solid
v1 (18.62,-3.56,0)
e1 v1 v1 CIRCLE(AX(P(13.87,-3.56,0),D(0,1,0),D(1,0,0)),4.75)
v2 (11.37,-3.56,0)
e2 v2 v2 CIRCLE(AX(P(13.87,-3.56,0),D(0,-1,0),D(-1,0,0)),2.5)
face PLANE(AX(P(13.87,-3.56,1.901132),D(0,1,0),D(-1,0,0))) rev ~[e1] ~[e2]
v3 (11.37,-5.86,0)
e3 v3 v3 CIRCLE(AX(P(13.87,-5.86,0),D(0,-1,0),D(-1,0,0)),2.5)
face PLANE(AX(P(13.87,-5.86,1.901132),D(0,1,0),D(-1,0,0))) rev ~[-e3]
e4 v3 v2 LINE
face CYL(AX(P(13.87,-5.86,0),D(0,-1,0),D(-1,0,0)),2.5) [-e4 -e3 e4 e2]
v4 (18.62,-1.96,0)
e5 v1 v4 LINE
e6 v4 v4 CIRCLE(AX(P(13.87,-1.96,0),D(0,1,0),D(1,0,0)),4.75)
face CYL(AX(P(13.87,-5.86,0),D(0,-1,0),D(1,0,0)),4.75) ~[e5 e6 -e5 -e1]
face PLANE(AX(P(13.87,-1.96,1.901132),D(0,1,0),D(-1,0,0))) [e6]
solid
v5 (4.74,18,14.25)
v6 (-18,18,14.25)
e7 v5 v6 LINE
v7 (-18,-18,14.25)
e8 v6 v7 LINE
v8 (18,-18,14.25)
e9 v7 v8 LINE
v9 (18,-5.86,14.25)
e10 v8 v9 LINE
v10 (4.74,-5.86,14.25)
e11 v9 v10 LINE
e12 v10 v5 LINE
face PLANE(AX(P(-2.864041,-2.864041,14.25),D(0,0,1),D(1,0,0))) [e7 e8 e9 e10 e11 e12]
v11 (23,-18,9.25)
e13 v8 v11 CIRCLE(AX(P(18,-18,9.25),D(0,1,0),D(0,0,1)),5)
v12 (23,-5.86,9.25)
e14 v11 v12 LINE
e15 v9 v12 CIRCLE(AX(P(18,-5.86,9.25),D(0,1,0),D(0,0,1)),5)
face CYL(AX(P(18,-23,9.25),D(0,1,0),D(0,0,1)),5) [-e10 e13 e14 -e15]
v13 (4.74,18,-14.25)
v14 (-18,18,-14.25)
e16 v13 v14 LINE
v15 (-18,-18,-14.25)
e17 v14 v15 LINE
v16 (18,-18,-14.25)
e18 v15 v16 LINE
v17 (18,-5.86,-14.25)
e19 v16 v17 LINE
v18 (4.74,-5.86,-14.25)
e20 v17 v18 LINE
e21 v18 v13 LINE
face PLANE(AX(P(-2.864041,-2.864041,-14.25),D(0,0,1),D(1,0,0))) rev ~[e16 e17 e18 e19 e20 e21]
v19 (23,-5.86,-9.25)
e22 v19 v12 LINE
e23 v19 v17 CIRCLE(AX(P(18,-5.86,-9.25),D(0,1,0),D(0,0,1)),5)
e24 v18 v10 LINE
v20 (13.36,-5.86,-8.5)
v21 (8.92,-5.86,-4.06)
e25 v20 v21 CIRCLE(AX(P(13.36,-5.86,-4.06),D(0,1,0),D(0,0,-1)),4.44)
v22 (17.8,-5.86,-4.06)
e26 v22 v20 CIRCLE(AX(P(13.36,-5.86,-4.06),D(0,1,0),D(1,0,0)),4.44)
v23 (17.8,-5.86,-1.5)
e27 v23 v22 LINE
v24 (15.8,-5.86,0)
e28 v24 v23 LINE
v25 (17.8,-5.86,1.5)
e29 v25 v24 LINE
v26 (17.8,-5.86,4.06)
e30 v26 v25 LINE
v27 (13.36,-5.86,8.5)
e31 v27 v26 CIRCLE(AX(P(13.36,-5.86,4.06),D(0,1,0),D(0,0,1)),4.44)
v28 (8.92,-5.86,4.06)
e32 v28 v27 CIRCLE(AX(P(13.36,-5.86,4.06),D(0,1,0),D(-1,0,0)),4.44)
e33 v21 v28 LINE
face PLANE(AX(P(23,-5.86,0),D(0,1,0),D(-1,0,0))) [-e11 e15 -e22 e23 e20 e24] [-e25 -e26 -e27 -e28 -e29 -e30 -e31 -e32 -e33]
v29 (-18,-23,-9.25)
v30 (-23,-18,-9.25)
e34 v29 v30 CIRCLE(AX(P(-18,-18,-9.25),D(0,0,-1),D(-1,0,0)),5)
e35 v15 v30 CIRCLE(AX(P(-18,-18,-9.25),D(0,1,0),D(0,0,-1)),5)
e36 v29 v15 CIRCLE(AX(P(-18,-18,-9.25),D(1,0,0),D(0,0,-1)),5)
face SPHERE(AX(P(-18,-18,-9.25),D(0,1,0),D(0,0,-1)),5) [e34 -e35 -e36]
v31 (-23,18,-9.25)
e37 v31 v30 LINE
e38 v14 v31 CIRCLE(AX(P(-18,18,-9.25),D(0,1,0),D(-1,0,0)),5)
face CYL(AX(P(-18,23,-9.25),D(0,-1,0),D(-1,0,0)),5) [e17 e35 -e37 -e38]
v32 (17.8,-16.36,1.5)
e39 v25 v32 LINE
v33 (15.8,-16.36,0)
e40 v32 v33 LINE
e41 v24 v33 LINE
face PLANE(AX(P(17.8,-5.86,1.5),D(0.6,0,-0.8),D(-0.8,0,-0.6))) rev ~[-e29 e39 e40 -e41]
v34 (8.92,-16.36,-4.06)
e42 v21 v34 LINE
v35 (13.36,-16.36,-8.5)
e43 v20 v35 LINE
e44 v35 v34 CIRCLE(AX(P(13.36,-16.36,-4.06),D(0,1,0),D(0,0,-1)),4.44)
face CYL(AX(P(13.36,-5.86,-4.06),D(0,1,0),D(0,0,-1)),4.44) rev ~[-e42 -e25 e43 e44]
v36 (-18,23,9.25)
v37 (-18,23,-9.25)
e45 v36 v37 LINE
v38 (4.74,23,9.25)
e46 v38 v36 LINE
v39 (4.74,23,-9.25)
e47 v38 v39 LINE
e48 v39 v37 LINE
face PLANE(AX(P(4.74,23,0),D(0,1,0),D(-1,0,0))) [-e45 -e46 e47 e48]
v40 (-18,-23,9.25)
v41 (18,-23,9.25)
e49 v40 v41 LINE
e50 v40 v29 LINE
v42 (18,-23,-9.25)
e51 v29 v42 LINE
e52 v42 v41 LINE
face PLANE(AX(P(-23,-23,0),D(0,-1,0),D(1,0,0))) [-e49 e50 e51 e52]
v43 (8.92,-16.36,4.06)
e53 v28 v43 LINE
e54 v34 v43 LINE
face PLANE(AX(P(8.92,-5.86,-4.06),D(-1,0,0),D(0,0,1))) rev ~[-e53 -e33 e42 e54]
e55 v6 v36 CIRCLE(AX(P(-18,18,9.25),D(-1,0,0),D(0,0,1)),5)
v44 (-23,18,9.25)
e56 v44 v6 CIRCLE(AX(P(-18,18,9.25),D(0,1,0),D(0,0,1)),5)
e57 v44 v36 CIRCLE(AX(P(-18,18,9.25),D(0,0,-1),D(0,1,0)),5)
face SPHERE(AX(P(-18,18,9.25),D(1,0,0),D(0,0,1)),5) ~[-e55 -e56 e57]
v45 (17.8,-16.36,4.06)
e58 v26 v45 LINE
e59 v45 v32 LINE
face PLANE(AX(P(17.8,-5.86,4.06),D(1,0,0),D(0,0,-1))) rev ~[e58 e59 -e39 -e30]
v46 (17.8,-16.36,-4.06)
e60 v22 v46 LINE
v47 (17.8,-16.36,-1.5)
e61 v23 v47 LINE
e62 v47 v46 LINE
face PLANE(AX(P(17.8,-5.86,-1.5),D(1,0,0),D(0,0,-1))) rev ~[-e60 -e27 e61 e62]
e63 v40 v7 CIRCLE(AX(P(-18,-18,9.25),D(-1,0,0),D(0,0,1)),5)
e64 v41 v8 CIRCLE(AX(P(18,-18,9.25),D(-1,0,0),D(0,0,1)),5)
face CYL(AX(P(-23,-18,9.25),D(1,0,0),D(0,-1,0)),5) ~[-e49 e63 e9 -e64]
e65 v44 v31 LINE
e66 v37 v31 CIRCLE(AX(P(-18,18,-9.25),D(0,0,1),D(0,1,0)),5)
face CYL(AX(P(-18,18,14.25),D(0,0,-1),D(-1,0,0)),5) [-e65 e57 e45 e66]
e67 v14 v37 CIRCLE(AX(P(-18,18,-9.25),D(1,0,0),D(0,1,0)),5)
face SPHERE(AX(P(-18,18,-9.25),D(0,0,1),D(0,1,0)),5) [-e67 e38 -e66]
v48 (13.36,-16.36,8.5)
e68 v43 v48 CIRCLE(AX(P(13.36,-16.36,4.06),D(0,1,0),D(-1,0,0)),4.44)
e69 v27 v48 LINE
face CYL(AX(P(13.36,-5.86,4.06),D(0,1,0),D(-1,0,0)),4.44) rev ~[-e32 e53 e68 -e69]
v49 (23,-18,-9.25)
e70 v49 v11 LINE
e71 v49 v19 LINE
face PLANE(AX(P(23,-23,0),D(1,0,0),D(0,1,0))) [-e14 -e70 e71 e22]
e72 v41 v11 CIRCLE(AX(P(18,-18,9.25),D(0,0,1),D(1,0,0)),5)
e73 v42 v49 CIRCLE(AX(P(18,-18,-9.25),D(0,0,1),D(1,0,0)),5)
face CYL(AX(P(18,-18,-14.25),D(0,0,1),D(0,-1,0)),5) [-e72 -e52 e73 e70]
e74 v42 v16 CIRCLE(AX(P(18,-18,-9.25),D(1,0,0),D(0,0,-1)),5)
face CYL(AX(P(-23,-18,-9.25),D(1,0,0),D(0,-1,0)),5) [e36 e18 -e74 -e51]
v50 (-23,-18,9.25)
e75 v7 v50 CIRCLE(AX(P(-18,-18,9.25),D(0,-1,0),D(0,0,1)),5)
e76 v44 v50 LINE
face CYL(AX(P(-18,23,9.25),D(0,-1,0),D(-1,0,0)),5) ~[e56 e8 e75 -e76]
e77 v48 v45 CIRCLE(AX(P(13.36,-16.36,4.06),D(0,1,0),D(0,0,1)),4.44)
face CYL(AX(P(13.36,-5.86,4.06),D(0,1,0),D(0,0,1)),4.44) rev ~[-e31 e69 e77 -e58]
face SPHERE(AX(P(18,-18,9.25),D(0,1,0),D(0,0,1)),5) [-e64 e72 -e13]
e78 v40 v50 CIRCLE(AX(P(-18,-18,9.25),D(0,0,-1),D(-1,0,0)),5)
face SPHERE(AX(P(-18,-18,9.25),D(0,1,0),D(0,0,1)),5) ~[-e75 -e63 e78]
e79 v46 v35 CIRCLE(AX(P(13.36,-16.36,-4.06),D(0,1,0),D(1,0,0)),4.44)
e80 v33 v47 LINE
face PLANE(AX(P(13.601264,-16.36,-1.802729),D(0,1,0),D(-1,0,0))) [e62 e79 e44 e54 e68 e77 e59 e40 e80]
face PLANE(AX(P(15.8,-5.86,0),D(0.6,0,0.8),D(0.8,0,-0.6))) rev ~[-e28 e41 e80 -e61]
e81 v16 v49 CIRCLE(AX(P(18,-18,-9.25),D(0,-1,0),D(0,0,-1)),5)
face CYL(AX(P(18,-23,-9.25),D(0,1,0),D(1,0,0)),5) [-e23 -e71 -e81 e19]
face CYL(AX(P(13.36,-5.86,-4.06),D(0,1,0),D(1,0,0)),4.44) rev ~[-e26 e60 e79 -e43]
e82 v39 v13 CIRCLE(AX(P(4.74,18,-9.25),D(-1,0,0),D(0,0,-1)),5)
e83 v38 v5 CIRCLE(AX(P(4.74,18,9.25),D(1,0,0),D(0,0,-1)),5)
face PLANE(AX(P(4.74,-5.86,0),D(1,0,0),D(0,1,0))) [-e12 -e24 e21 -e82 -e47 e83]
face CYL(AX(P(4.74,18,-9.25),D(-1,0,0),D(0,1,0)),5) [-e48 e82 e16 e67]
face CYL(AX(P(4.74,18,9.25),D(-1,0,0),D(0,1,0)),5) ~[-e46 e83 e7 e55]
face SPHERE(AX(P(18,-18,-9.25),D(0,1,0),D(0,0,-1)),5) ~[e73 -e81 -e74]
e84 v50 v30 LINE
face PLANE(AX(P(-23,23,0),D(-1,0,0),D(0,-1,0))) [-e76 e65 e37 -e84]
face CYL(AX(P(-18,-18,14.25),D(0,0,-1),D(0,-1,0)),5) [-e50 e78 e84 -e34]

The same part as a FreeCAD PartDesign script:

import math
import FreeCAD as App
import Part
import Sketcher
Q = App.Units.Quantity


def edges_at(feature, points):
    """Names of the edges that pass closest to the given points."""
    edges = feature.Shape.Edges
    near = lambda p: min(range(len(edges)), key=lambda i: edges[i].distToShape(Part.Vertex(*p))[0])
    return sorted({f"Edge{near(p) + 1}" for p in points})

doc = App.newDocument("Part")
body = doc.addObject("PartDesign::Body", "Body")

# Sketch on XY plane
sketch1 = body.newObject("Sketcher::SketchObject", "Sketch")
sketch1.AttachmentSupport = (doc.getObject("XY_Plane"), [""])
sketch1.MapMode = "FlatFace"
sketch1.addGeometry([
    Part.LineSegment(App.Vector(-23, -23, 0), App.Vector(23, -23, 0)),  # 0
    Part.LineSegment(App.Vector(23, -23, 0), App.Vector(23, -5.86, 0)),  # 1
    Part.LineSegment(App.Vector(23, -5.86, 0), App.Vector(4.74, -5.86, 0)),  # 2
    Part.LineSegment(App.Vector(4.74, -5.86, 0), App.Vector(4.74, 23, 0)),  # 3
    Part.LineSegment(App.Vector(4.74, 23, 0), App.Vector(-23, 23, 0)),  # 4
    Part.LineSegment(App.Vector(-23, 23, 0), App.Vector(-23, -23, 0)),  # 5
], False)
sketch1.addConstraint([
    Sketcher.Constraint("Coincident", 0, 2, 1, 1),
    Sketcher.Constraint("Coincident", 1, 2, 2, 1),
    Sketcher.Constraint("Coincident", 2, 2, 3, 1),
    Sketcher.Constraint("Coincident", 3, 2, 4, 1),
    Sketcher.Constraint("Coincident", 4, 2, 5, 1),
    Sketcher.Constraint("Coincident", 5, 2, 0, 1),
    Sketcher.Constraint("Horizontal", 0),
    Sketcher.Constraint("Vertical", 1),
    Sketcher.Constraint("Horizontal", 2),
    Sketcher.Constraint("Vertical", 3),
    Sketcher.Constraint("Horizontal", 4),
    Sketcher.Constraint("Vertical", 5),
    Sketcher.Constraint("Symmetric", 0, 2, 4, 2, -1, 1),
    Sketcher.Constraint("Equal", 0, 5),
    Sketcher.Constraint("DistanceX", 0, 1, 0, 2, Q("46 mm")),
    Sketcher.Constraint("DistanceX", 2, 2, 2, 1, Q("18.26 mm")),
    Sketcher.Constraint("DistanceY", 1, 1, 1, 2, Q("17.14 mm")),
])
pad1 = body.newObject("PartDesign::Pad", "Pad")
pad1.Profile = sketch1
pad1.Length = 28.5
pad1.Midplane = True
doc.recompute()

fillet = body.newObject("PartDesign::Fillet", "Fillet")
fillet.Base = (pad1, edges_at(pad1, [
    (23, -14.43, 14.25),
    (23, -14.43, -14.25),
    (-9.13, 23, 14.25),
    (-23, 0, 14.25),
    (-23, 23, 0),
    (-9.13, 23, -14.25),
    (-23, 0, -14.25),
    (0, -23, -14.25),
    (0, -23, 14.25),
    (-23, -23, 0),
    (23, -23, 0),
]))
fillet.Radius = 5

# Sketch on XZ plane
sketch2 = body.newObject("Sketcher::SketchObject", "Sketch001")
sketch2.AttachmentSupport = (doc.getObject("XZ_Plane"), [""])
sketch2.MapMode = "FlatFace"
sketch2.AttachmentOffset = App.Placement(App.Vector(0, 0, 5.86), App.Rotation())
sketch2.addGeometry([
    Part.LineSegment(App.Vector(8.92, -4.06, 0), App.Vector(8.92, 4.06, 0)),  # 0
    Part.ArcOfCircle(Part.Circle(App.Vector(13.36, 4.06, 0), App.Vector(0, 0, 1), 4.44), math.radians(90), math.radians(180)),  # 1
    Part.ArcOfCircle(Part.Circle(App.Vector(13.36, 4.06, 0), App.Vector(0, 0, 1), 4.44), math.radians(0), math.radians(90)),  # 2
    Part.LineSegment(App.Vector(17.8, 4.06, 0), App.Vector(17.8, 1.5, 0)),  # 3
    Part.LineSegment(App.Vector(17.8, 1.5, 0), App.Vector(15.8, 0, 0)),  # 4
    Part.LineSegment(App.Vector(15.8, 0, 0), App.Vector(17.8, -1.5, 0)),  # 5
    Part.LineSegment(App.Vector(17.8, -1.5, 0), App.Vector(17.8, -4.06, 0)),  # 6
    Part.ArcOfCircle(Part.Circle(App.Vector(13.36, -4.06, 0), App.Vector(0, 0, 1), 4.44), math.radians(-90), math.radians(0)),  # 7
    Part.ArcOfCircle(Part.Circle(App.Vector(13.36, -4.06, 0), App.Vector(0, 0, 1), 4.44), math.radians(180), math.radians(270)),  # 8
], False)
sketch2.addConstraint([
    Sketcher.Constraint("Tangent", 0, 2, 1, 2),
    Sketcher.Constraint("Tangent", 1, 1, 2, 2),
    Sketcher.Constraint("Tangent", 2, 1, 3, 1),
    Sketcher.Constraint("Coincident", 3, 2, 4, 1),
    Sketcher.Constraint("Coincident", 4, 2, 5, 1),
    Sketcher.Constraint("Coincident", 5, 2, 6, 1),
    Sketcher.Constraint("Tangent", 6, 2, 7, 2),
    Sketcher.Constraint("Tangent", 7, 1, 8, 2),
    Sketcher.Constraint("Tangent", 8, 1, 0, 1),
    Sketcher.Constraint("Vertical", 0),
    Sketcher.Constraint("Vertical", 3),
    Sketcher.Constraint("Vertical", 6),
    Sketcher.Constraint("Equal", 1, 2),
    Sketcher.Constraint("Equal", 2, 7),
    Sketcher.Constraint("Equal", 7, 8),
    Sketcher.Constraint("Symmetric", 1, 1, 7, 1, -1),
    Sketcher.Constraint("PointOnObject", 4, 2, -1),
    Sketcher.Constraint("Vertical", 8, 3, 1, 1),
    Sketcher.Constraint("Equal", 3, 6),
    Sketcher.Constraint("Radius", 1, Q("4.44 mm")),
    Sketcher.Constraint("DistanceX", 4, 2, 3, 2, Q("2 mm")),
    Sketcher.Constraint("DistanceY", 5, 2, 3, 2, Q("3 mm")),
    Sketcher.Constraint("DistanceY", 7, 1, 5, 2, Q("7 mm")),
    Sketcher.Constraint("DistanceX", -1, 1, 2, 1, Q("17.8 mm")),
])
pocket1 = body.newObject("PartDesign::Pocket", "Pocket")
pocket1.Profile = sketch2
pocket1.Length = 10.5
pocket1.Reversed = True
body2 = doc.addObject("PartDesign::Body", "Body001")

# Sketch on XZ plane
sketch3 = body2.newObject("Sketcher::SketchObject", "Sketch002")
sketch3.AttachmentSupport = (doc.getObject("XZ_Plane001"), [""])
sketch3.MapMode = "FlatFace"
sketch3.AttachmentOffset = App.Placement(App.Vector(0, 0, 5.86), App.Rotation())
sketch3.addGeometry(Part.Circle(App.Vector(13.87, 0, 0), App.Vector(0, 0, 1), 4.75), False)
sketch3.addConstraint([
    Sketcher.Constraint("PointOnObject", 0, 3, -1),
    Sketcher.Constraint("Diameter", 0, Q("9.5 mm")),
    Sketcher.Constraint("DistanceX", -1, 1, 0, 3, Q("13.87 mm")),
])
pad2 = body2.newObject("PartDesign::Pad", "Pad001")
pad2.Profile = sketch3
pad2.Length = 3.9
pad2.Reversed = True

# Sketch on XZ plane
sketch4 = body2.newObject("Sketcher::SketchObject", "Sketch003")
sketch4.AttachmentSupport = (doc.getObject("XZ_Plane001"), [""])
sketch4.MapMode = "FlatFace"
sketch4.AttachmentOffset = App.Placement(App.Vector(0, 0, 5.86), App.Rotation())
sketch4.addGeometry([
    Part.Circle(App.Vector(13.87, 0, 0), App.Vector(0, 0, 1), 4.75),
    Part.Circle(App.Vector(13.87, 0, 0), App.Vector(0, 0, 1), 2.5),
], False)
sketch4.addConstraint([
    Sketcher.Constraint("Coincident", 1, 3, 0, 3),
    Sketcher.Constraint("PointOnObject", 0, 3, -1),
    Sketcher.Constraint("Diameter", 1, Q("5 mm")),
    Sketcher.Constraint("Diameter", 0, Q("9.5 mm")),
    Sketcher.Constraint("DistanceX", -1, 1, 0, 3, Q("13.87 mm")),
])
pocket2 = body2.newObject("PartDesign::Pocket", "Pocket001")
pocket2.Profile = sketch4
pocket2.Length = 2.3

doc.recompute()
